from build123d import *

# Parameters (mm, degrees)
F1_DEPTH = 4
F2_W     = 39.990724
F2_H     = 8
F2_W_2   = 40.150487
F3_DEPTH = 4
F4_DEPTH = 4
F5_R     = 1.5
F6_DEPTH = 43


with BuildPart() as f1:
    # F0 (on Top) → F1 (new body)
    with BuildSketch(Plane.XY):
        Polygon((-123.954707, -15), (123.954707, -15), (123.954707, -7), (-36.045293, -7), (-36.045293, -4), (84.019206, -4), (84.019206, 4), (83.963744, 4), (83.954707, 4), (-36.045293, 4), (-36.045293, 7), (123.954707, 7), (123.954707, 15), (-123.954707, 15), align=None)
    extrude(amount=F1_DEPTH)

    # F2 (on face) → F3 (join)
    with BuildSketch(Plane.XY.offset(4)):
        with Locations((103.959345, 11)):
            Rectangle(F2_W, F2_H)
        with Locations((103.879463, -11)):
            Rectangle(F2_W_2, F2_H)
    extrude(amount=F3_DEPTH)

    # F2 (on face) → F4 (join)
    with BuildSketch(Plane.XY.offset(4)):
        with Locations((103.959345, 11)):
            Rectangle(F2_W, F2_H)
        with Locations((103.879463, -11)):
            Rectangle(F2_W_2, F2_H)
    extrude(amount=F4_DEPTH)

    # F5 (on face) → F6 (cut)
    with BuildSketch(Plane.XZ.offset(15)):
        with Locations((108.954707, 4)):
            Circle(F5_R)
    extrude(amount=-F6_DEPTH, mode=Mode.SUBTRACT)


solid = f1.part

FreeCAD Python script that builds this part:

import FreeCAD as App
import Part
import Sketcher


def add_polygon(sketch, points):
    """Adds a closed chain of lines whose ends are joined by coincident constraints."""
    first, n = sketch.GeometryCount, len(points)
    for a, b in zip(points, points[1:] + points[:1]):
        sketch.addGeometry(Part.LineSegment(App.Vector(*a, 0), App.Vector(*b, 0)), False)
    for i in range(n):
        sketch.addConstraint(Sketcher.Constraint("Coincident", first + i, 2, first + (i + 1) % n, 1))

doc = App.newDocument("Part")
body = doc.addObject("PartDesign::Body", "Body")

sketch1 = body.newObject("Sketcher::SketchObject", "Sketch")
sketch1.AttachmentSupport = (doc.getObject("XY_Plane"), [""])
sketch1.MapMode = "FlatFace"
add_polygon(sketch1, [(-124, -15), (124, -15), (124, -7), (-36, -7), (-36, -4), (84, -4), (84, 4), (-36, 4), (-36, 7), (124, 7), (124, 15), (-124, 15)])
sketch1.addConstraint([
    Sketcher.Constraint("Horizontal", 0),
    Sketcher.Constraint("Vertical", 1),
    Sketcher.Constraint("Horizontal", 2),
    Sketcher.Constraint("Vertical", 3),
    Sketcher.Constraint("Horizontal", 4),
    Sketcher.Constraint("Vertical", 5),
    Sketcher.Constraint("Horizontal", 6),
    Sketcher.Constraint("Vertical", 7),
    Sketcher.Constraint("Horizontal", 8),
    Sketcher.Constraint("Vertical", 9),
    Sketcher.Constraint("Horizontal", 10),
    Sketcher.Constraint("Vertical", 11),
    Sketcher.Constraint("Symmetric", 0, 2, 10, 2, -1, 1),
    Sketcher.Constraint("Symmetric", 3, 2, 6, 2, -1),
    Sketcher.Constraint("Symmetric", 1, 2, 8, 2, -1),
    Sketcher.Constraint("Equal", 1, 5),
    Sketcher.Constraint("DistanceX", 2, 2, 2, 1, 160.0),
    Sketcher.Constraint("DistanceY", 1, 1, 1, 2, 8.0),
    Sketcher.Constraint("DistanceY", 3, 1, 3, 2, 3.0),
    Sketcher.Constraint("DistanceX", 4, 1, 4, 2, 120.064499),
    Sketcher.Constraint("DistanceX", 0, 1, 0, 2, 247.909414),
])
pad1 = body.newObject("PartDesign::Pad", "Pad")
pad1.Profile = sketch1
pad1.Length = 4

sketch2 = body.newObject("Sketcher::SketchObject", "Sketch001")
sketch2.AttachmentSupport = (doc.getObject("XY_Plane"), [""])
sketch2.MapMode = "FlatFace"
sketch2.AttachmentOffset = App.Placement(App.Vector(0, 0, 4), App.Rotation())
add_polygon(sketch2, [(84, 15), (84, 7), (124, 7), (124, 15)])
add_polygon(sketch2, [(84, -7), (84, -15), (124, -15), (124, -7)])
sketch2.addConstraint([
    Sketcher.Constraint("Vertical", 0),
    Sketcher.Constraint("Horizontal", 1),
    Sketcher.Constraint("Vertical", 2),
    Sketcher.Constraint("Horizontal", 3),
    Sketcher.Constraint("Vertical", 4),
    Sketcher.Constraint("Horizontal", 5),
    Sketcher.Constraint("Vertical", 6),
    Sketcher.Constraint("Horizontal", 7),
    Sketcher.Constraint("Symmetric", 2, 2, 5, 2, -1),
    Sketcher.Constraint("Equal", 2, 4),
    Sketcher.Constraint("DistanceY", 0, 2, 0, 1, 8.0),
    Sketcher.Constraint("DistanceY", -1, 1, 0, 2, 7.0),
    Sketcher.Constraint("DistanceX", 1, 1, 1, 2, 39.990724),
    Sketcher.Constraint("DistanceX", 5, 1, 5, 2, 40.150487),
    Sketcher.Constraint("DistanceX", -1, 1, 4, 2, 83.80422),
])
pad2 = body.newObject("PartDesign::Pad", "Pad001")
pad2.Profile = sketch2
pad2.Length = 4

sketch3 = body.newObject("Sketcher::SketchObject", "Sketch002")
sketch3.AttachmentSupport = (doc.getObject("XY_Plane"), [""])
sketch3.MapMode = "FlatFace"
sketch3.AttachmentOffset = App.Placement(App.Vector(0, 0, 4), App.Rotation())
add_polygon(sketch3, [(84, 15), (84, 7), (124, 7), (124, 15)])
add_polygon(sketch3, [(84, -7), (84, -15), (124, -15), (124, -7)])
sketch3.addConstraint([
    Sketcher.Constraint("Vertical", 0),
    Sketcher.Constraint("Horizontal", 1),
    Sketcher.Constraint("Vertical", 2),
    Sketcher.Constraint("Horizontal", 3),
    Sketcher.Constraint("Vertical", 4),
    Sketcher.Constraint("Horizontal", 5),
    Sketcher.Constraint("Vertical", 6),
    Sketcher.Constraint("Horizontal", 7),
    Sketcher.Constraint("Symmetric", 2, 2, 5, 2, -1),
    Sketcher.Constraint("Equal", 2, 4),
    Sketcher.Constraint("DistanceY", 0, 2, 0, 1, 8.0),
    Sketcher.Constraint("DistanceY", -1, 1, 0, 2, 7.0),
    Sketcher.Constraint("DistanceX", 1, 1, 1, 2, 39.990724),
    Sketcher.Constraint("DistanceX", 5, 1, 5, 2, 40.150487),
    Sketcher.Constraint("DistanceX", -1, 1, 4, 2, 83.80422),
])
pad3 = body.newObject("PartDesign::Pad", "Pad002")
pad3.Profile = sketch3
pad3.Length = 4

sketch4 = body.newObject("Sketcher::SketchObject", "Sketch003")
sketch4.AttachmentSupport = (doc.getObject("XZ_Plane"), [""])
sketch4.MapMode = "FlatFace"
sketch4.AttachmentOffset = App.Placement(App.Vector(0, 0, 15), App.Rotation())
sketch4.addGeometry(Part.Circle(App.Vector(109, 4, 0), App.Vector(0, 0, 1), 1.5), False)
sketch4.addConstraint([
    Sketcher.Constraint("Diameter", 0, 3.0),
    Sketcher.Constraint("DistanceY", -1, 1, 0, 3, 4.0),
    Sketcher.Constraint("DistanceX", -1, 1, 0, 3, 108.954707),
])
pocket1 = body.newObject("PartDesign::Pocket", "Pocket")
pocket1.Profile = sketch4
pocket1.Length = 43

doc.recompute()
